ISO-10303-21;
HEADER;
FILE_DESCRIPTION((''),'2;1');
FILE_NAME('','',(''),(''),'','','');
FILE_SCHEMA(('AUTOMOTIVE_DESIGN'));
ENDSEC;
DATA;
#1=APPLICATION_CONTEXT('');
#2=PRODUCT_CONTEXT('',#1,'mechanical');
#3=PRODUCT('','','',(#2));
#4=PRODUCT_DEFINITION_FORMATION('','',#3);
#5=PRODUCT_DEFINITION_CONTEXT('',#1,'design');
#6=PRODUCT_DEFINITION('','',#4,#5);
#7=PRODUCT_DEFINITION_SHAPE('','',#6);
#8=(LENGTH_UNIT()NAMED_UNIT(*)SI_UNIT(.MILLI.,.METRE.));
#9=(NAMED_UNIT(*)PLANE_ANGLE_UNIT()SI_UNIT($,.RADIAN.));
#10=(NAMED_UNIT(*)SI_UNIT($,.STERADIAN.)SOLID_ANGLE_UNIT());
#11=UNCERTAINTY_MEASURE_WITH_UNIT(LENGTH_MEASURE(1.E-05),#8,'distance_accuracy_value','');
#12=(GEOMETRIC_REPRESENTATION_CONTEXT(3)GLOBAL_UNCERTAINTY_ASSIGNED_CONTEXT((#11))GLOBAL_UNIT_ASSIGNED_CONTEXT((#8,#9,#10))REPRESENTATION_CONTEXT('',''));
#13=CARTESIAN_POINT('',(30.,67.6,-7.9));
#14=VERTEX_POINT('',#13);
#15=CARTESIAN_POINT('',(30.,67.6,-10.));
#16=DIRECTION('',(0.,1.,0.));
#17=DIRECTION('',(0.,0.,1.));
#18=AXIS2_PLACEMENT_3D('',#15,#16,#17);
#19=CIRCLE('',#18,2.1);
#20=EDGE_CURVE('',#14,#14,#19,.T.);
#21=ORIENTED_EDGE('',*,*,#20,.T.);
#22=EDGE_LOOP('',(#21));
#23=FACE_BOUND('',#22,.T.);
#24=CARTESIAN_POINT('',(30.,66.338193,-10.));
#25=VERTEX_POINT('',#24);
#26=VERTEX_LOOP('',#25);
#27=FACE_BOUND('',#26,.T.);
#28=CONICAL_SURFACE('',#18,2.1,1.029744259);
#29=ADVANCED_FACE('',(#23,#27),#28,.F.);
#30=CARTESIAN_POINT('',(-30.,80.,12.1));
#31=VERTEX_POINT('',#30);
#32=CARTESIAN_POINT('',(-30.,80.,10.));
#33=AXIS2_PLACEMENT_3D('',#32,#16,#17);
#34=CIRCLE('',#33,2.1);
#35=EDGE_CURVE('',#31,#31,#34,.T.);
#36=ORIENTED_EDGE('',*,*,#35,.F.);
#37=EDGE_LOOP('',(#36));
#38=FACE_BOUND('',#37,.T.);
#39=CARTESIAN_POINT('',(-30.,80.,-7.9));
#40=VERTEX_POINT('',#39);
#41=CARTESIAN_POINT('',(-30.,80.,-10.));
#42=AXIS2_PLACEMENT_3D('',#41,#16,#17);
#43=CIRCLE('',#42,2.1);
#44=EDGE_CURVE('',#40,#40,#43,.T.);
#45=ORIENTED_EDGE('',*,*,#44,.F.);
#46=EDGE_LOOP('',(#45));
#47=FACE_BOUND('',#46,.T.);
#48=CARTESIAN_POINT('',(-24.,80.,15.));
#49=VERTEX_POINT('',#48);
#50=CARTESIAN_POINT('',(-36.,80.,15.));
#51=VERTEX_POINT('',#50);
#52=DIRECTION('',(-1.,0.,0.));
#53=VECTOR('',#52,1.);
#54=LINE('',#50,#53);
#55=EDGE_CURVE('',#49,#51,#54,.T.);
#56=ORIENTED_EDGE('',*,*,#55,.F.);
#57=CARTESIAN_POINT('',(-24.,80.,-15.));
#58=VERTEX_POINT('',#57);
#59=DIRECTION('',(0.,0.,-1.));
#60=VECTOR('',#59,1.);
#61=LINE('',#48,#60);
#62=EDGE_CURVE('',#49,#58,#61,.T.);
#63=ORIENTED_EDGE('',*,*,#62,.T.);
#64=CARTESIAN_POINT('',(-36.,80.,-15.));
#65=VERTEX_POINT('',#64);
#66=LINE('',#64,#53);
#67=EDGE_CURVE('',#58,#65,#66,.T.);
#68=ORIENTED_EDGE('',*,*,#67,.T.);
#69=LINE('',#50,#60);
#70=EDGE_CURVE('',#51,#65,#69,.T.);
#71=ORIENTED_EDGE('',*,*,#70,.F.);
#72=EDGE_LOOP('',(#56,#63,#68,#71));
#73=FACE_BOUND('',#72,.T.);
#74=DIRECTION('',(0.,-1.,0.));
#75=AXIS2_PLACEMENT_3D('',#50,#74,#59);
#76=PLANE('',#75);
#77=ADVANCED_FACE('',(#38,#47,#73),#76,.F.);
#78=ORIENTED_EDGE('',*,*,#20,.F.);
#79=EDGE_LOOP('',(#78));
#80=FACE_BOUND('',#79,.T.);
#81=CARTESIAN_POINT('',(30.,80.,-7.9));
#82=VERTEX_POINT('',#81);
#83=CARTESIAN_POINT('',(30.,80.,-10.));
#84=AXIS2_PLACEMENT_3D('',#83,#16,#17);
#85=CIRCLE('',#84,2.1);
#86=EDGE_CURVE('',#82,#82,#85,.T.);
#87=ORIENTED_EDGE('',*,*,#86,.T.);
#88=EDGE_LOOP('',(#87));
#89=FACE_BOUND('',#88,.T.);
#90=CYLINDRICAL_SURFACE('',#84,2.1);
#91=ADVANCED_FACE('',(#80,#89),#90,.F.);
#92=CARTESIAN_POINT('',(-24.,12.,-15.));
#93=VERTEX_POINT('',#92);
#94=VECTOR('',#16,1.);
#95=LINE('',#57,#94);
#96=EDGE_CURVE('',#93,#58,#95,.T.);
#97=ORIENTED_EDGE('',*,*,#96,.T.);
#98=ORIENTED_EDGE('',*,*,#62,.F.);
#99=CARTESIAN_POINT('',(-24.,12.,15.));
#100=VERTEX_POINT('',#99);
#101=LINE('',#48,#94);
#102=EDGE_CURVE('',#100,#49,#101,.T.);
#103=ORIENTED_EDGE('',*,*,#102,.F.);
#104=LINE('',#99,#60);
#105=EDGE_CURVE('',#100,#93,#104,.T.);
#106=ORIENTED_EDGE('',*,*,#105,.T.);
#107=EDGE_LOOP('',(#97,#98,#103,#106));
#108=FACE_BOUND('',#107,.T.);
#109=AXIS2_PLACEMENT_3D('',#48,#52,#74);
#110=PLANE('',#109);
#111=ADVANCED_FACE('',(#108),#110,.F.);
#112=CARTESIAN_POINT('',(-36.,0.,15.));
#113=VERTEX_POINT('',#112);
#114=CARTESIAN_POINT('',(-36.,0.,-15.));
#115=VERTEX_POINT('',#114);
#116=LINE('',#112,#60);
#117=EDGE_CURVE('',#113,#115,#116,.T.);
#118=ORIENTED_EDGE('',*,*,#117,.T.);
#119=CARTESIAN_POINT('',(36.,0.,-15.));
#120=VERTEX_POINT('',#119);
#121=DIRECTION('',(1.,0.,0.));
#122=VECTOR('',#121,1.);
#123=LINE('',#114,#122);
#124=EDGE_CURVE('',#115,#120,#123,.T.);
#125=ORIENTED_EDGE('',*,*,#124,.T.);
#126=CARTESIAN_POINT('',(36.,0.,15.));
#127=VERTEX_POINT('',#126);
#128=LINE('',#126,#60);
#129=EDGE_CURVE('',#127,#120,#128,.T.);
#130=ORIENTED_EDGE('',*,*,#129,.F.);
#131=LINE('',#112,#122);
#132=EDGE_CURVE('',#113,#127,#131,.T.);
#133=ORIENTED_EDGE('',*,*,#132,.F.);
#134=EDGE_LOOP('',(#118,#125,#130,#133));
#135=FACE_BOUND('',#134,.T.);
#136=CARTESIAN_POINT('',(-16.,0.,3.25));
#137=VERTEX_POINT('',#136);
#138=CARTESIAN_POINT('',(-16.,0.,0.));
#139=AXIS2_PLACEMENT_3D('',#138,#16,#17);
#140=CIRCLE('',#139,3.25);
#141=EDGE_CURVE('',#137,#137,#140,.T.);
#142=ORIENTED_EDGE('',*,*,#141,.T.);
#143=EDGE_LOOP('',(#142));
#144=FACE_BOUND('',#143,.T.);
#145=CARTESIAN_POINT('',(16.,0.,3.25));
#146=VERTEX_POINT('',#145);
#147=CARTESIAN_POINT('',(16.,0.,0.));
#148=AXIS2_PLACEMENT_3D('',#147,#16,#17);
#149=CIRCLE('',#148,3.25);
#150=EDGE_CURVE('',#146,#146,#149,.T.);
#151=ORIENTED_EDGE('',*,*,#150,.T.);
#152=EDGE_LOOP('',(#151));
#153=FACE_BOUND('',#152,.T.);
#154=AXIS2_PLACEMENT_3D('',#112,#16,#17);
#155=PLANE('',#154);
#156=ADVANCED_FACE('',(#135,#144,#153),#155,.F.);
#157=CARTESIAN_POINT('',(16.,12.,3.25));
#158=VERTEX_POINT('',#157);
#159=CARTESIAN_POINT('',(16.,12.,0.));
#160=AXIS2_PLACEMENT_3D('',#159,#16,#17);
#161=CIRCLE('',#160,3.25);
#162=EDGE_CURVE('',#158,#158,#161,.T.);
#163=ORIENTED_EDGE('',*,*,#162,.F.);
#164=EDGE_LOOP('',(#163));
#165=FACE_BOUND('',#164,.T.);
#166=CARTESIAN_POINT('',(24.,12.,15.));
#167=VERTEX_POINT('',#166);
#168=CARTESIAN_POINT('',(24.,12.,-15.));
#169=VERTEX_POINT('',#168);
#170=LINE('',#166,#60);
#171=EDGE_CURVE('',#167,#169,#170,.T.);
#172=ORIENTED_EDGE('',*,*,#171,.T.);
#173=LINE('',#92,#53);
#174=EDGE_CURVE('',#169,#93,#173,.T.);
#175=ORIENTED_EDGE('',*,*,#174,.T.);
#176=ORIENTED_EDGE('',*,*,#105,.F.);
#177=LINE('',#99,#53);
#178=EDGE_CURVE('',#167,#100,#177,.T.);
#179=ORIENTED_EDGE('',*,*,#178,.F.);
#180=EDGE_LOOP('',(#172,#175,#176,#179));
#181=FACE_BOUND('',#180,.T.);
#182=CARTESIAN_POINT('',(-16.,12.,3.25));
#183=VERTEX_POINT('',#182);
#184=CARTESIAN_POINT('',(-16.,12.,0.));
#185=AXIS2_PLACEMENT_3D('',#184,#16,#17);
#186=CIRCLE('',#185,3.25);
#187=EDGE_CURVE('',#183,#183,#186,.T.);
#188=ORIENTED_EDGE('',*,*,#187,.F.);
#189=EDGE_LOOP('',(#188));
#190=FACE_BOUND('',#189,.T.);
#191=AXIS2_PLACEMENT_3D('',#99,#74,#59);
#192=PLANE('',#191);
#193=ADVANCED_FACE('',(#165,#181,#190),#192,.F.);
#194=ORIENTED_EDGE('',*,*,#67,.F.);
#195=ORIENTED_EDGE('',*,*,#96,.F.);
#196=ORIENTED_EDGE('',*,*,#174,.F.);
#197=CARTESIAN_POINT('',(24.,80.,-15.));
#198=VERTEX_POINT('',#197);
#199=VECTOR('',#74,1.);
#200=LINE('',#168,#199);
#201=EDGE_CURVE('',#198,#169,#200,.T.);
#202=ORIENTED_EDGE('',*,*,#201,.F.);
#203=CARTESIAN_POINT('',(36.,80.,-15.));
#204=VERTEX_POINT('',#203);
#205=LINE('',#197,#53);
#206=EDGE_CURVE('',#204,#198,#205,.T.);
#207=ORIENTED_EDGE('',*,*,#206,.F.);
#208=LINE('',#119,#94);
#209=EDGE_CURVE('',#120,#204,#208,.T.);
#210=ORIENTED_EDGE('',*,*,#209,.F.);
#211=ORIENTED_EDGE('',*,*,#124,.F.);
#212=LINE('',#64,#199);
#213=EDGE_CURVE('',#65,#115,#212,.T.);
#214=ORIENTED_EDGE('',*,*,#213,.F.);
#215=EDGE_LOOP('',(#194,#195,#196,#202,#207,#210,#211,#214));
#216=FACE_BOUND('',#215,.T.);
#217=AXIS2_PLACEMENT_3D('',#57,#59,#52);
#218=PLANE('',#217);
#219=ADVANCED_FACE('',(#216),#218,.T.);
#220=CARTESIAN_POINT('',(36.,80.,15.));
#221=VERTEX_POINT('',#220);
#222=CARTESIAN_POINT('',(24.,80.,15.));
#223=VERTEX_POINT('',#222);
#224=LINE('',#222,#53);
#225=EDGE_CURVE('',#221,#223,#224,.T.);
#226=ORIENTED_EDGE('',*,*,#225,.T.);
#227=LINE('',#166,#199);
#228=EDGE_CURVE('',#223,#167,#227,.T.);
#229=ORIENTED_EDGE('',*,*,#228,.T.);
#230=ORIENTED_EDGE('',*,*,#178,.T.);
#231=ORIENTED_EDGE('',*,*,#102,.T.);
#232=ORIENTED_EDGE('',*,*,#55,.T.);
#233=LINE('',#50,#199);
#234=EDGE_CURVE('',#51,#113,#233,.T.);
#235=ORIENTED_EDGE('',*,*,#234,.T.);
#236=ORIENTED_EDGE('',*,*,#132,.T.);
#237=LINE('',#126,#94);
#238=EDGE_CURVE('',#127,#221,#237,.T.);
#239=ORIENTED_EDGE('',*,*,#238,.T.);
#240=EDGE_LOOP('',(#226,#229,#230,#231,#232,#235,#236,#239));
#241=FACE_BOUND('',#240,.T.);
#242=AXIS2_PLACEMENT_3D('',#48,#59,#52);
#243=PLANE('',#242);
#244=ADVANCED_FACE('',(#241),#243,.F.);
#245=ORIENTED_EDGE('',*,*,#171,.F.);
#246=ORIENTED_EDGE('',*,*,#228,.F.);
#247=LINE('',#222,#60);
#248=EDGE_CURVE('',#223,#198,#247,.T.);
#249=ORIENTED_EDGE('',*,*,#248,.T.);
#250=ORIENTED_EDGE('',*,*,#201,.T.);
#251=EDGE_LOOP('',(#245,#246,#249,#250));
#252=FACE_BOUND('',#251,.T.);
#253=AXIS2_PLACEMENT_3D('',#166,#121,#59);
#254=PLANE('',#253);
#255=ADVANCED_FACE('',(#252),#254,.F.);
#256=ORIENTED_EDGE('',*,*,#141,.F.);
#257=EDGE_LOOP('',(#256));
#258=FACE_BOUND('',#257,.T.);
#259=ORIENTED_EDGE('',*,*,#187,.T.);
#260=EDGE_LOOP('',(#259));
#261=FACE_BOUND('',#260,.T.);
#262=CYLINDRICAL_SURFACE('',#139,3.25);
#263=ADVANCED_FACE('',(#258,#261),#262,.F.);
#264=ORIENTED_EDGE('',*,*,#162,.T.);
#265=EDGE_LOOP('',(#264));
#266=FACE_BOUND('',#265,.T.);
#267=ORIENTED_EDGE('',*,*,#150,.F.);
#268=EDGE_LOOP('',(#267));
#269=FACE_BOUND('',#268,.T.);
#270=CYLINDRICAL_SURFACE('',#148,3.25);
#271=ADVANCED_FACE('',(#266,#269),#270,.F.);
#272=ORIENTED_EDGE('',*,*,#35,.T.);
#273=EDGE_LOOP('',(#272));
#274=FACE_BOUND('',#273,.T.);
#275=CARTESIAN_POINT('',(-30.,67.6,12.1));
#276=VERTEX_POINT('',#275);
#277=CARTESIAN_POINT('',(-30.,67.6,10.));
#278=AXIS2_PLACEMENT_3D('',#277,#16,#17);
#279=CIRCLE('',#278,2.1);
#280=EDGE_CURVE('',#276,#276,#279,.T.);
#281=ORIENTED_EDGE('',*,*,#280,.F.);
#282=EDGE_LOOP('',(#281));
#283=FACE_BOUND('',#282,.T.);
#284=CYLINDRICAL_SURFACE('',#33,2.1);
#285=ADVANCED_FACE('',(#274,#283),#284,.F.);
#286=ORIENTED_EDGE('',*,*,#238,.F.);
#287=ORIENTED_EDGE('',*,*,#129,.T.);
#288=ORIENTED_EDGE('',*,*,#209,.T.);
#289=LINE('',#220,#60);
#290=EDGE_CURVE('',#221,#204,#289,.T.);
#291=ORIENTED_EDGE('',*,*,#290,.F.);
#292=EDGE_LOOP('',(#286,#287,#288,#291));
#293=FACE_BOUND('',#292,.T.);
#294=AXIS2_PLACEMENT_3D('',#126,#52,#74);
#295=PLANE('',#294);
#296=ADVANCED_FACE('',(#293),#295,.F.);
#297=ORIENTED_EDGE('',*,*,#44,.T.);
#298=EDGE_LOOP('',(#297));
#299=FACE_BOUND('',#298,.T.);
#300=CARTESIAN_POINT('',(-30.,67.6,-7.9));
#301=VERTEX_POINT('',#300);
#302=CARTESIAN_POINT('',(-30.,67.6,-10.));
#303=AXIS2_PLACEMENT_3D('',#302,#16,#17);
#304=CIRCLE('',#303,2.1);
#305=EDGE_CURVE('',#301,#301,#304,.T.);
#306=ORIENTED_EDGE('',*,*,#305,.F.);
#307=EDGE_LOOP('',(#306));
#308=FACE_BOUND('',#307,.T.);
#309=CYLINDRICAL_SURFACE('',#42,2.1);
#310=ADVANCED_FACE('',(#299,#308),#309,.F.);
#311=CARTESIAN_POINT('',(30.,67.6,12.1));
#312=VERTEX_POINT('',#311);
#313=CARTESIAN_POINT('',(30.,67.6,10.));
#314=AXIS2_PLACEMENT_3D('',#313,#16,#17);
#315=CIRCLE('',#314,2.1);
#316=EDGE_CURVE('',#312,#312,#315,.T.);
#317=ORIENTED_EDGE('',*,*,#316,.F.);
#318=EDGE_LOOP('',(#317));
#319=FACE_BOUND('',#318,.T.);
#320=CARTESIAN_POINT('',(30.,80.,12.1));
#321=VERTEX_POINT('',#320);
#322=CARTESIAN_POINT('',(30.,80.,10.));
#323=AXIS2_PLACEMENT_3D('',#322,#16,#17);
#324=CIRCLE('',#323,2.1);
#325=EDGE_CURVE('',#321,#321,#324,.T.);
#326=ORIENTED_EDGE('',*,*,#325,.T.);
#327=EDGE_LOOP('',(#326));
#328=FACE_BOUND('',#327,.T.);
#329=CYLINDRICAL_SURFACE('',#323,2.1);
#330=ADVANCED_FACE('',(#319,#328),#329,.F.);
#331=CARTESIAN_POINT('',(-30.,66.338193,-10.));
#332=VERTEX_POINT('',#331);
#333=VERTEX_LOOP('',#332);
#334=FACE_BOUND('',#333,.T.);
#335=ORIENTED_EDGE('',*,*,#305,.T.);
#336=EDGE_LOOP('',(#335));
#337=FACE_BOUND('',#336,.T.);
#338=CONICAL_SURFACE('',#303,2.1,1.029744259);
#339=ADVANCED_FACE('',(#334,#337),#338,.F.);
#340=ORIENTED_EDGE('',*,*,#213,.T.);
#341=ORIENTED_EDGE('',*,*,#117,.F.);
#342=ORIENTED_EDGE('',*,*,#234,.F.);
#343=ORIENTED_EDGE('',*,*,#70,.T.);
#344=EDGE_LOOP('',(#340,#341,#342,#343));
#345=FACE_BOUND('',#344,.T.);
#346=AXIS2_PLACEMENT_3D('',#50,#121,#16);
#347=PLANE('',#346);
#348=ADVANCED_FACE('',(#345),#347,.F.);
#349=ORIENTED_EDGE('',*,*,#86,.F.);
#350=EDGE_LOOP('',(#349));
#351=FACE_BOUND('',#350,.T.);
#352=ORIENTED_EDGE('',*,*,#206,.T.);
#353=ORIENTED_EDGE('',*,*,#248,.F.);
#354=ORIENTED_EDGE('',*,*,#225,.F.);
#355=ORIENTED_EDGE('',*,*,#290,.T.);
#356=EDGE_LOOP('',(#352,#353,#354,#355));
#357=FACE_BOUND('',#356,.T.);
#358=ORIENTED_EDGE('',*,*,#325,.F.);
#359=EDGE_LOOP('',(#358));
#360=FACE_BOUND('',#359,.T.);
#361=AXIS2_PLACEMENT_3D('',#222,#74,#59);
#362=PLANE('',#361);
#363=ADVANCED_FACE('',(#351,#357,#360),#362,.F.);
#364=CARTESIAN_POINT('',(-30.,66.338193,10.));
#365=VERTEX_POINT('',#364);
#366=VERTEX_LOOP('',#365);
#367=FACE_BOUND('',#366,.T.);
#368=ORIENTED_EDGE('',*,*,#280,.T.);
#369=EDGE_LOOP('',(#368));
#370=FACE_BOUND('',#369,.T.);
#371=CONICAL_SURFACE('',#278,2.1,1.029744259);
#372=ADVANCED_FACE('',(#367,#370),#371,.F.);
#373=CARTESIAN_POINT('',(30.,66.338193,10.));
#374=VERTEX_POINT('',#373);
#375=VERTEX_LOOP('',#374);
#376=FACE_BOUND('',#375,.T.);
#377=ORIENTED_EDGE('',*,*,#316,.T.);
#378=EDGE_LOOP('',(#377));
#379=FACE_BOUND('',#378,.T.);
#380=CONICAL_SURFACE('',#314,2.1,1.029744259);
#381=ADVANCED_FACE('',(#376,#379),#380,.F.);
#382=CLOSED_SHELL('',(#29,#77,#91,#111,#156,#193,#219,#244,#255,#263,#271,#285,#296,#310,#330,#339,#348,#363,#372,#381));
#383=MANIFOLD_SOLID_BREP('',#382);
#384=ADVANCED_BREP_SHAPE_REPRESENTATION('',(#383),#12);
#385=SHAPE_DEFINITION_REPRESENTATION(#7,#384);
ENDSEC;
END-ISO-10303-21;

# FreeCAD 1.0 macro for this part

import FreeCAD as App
import Part
import Sketcher
from FreeCAD import Vector


def add_polygon(sketch, points):
    """Adds a closed chain of lines whose ends are joined by coincident constraints."""
    first, n = sketch.GeometryCount, len(points)
    for a, b in zip(points, points[1:] + points[:1]):
        sketch.addGeometry(Part.LineSegment(App.Vector(*a, 0), App.Vector(*b, 0)), False)
    for i in range(n):
        sketch.addConstraint(Sketcher.Constraint("Coincident", first + i, 2, first + (i + 1) % n, 1))

doc = App.newDocument("Part")
body = doc.addObject("PartDesign::Body", "Body")

# Sketch on XY plane
sketch1 = doc.addObject("Sketcher::SketchObject", "Sketch")
body.addObject(sketch1)
sketch1.AttachmentSupport = (doc.XY_Plane, [""])
sketch1.MapMode = "FlatFace"
add_polygon(sketch1, [(-36, 80), (-36, 0), (36, 0), (36, 80), (24, 80), (24, 12), (-24, 12), (-24, 80)])  # lines 0-7
sketch1.addConstraint(Sketcher.Constraint("Vertical", 0))
sketch1.addConstraint(Sketcher.Constraint("Horizontal", 1))
sketch1.addConstraint(Sketcher.Constraint("Vertical", 2))
sketch1.addConstraint(Sketcher.Constraint("Horizontal", 3))
sketch1.addConstraint(Sketcher.Constraint("Vertical", 4))
sketch1.addConstraint(Sketcher.Constraint("Horizontal", 5))
sketch1.addConstraint(Sketcher.Constraint("Vertical", 6))
sketch1.addConstraint(Sketcher.Constraint("Horizontal", 7))
sketch1.addConstraint(Sketcher.Constraint("Symmetric", 0, 2, 1, 2, -1, 1))
sketch1.addConstraint(Sketcher.Constraint("Symmetric", 3, 2, 6, 2, -2))
sketch1.addConstraint(Sketcher.Constraint("DistanceX", 1, 1, 1, 2, 72.0))
sketch1.addConstraint(Sketcher.Constraint("DistanceX", 3, 2, 3, 1, 12.0))
sketch1.addConstraint(Sketcher.Constraint("DistanceY", 0, 2, 0, 1, 80.0))
sketch1.addConstraint(Sketcher.Constraint("DistanceY", 4, 2, 4, 1, 68.0))
pad1 = doc.addObject("PartDesign::Pad", "Pad")
body.addObject(pad1)
pad1.Profile = sketch1
pad1.Length = 30
pad1.Midplane = True

# Sketch on XZ plane
sketch2 = doc.addObject("Sketcher::SketchObject", "Sketch001")
body.addObject(sketch2)
sketch2.AttachmentSupport = (doc.XZ_Plane, [""])
sketch2.MapMode = "FlatFace"
sketch2.AttachmentOffset = App.Placement(Vector(0, 0, -80), App.Rotation())
sketch2.addGeometry(Part.Circle(Vector(30, -10, 0), Vector(0, 0, 1), 2.1), False)
sketch2.addGeometry(Part.Circle(Vector(-30, -10, 0), Vector(0, 0, 1), 2.1), False)
sketch2.addGeometry(Part.Circle(Vector(-30, 10, 0), Vector(0, 0, 1), 2.1), False)
sketch2.addGeometry(Part.Circle(Vector(30, 10, 0), Vector(0, 0, 1), 2.1), False)
sketch2.addConstraint(Sketcher.Constraint("Equal", 0, 1))
sketch2.addConstraint(Sketcher.Constraint("Equal", 1, 2))
sketch2.addConstraint(Sketcher.Constraint("Equal", 2, 3))
sketch2.addConstraint(Sketcher.Constraint("Symmetric", 0, 3, 2, 3, -1, 1))
sketch2.addConstraint(Sketcher.Constraint("Symmetric", 1, 3, 3, 3, -1, 1))
sketch2.addConstraint(Sketcher.Constraint("Symmetric", 0, 3, 1, 3, -2))
sketch2.addConstraint(Sketcher.Constraint("Diameter", 0, 4.2))
sketch2.addConstraint(Sketcher.Constraint("DistanceX", -1, 1, 0, 3, 30.0))
sketch2.addConstraint(Sketcher.Constraint("DistanceY", 0, 3, -1, 1, 10.0))
doc.recompute()
hole = doc.addObject("PartDesign::Hole", "Hole")
body.addObject(hole)
hole.Profile = sketch2
hole.ThreadType = "None"
hole.Diameter = 4.2
hole.DepthType = "Dimension"
hole.Depth = 12.4
hole.DrillPoint = "Angled"
hole.DrillPointAngle = 118
hole.Reversed = True

# Sketch on XZ plane
sketch3 = doc.addObject("Sketcher::SketchObject", "Sketch002")
body.addObject(sketch3)
sketch3.AttachmentSupport = (doc.XZ_Plane, [""])
sketch3.MapMode = "FlatFace"
sketch3.AttachmentOffset = App.Placement(Vector(0, 0, -12), App.Rotation())
sketch3.addGeometry(Part.Circle(Vector(-16, 0, 0), Vector(0, 0, 1), 3.2), False)
sketch3.addGeometry(Part.Circle(Vector(16, 0, 0), Vector(0, 0, 1), 3.2), False)
sketch3.addConstraint(Sketcher.Constraint("Equal", 0, 1))
sketch3.addConstraint(Sketcher.Constraint("Symmetric", 0, 3, 1, 3, -1, 1))
sketch3.addConstraint(Sketcher.Constraint("PointOnObject", 0, 3, -1))
sketch3.addConstraint(Sketcher.Constraint("Diameter", 0, 6.5))
sketch3.addConstraint(Sketcher.Constraint("DistanceX", 0, 3, -1, 1, 16.0))
pocket1 = doc.addObject("PartDesign::Pocket", "Pocket")
body.addObject(pocket1)
pocket1.Profile = sketch3
pocket1.Type = "ThroughAll"
pocket1.Reversed = True

doc.recompute()
